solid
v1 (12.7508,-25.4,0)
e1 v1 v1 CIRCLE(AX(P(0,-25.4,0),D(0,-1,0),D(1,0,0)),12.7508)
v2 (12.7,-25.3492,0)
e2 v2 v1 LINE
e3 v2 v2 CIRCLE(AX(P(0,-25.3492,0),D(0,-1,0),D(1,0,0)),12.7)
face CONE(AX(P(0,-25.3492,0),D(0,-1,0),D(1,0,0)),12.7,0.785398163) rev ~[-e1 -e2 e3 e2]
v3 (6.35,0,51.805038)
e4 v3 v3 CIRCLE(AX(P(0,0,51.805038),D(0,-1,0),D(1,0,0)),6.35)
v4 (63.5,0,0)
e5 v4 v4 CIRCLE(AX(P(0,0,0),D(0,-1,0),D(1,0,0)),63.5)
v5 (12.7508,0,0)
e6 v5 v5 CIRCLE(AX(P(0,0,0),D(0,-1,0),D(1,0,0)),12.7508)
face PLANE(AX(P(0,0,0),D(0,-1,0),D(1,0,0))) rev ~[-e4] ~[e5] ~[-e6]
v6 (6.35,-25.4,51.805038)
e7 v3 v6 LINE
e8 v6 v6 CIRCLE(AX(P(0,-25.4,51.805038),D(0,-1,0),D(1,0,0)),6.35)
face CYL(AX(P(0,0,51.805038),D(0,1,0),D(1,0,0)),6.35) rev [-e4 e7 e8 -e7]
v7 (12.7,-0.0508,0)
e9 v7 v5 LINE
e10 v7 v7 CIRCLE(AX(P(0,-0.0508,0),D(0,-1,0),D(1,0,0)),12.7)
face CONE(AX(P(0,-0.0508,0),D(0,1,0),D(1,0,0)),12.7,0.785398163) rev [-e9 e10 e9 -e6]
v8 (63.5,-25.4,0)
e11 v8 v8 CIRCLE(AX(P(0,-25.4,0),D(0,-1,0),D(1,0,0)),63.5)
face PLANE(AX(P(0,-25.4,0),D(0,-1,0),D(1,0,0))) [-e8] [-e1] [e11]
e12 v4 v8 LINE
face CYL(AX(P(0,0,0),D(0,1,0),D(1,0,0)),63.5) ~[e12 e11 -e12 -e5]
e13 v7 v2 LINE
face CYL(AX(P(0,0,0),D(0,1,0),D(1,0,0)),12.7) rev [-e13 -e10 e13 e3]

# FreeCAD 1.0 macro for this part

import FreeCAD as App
import Part
import Sketcher
from FreeCAD import Vector
Q = App.Units.Quantity


def edges_at(feature, points):
    """Names of the edges that pass closest to the given points."""
    edges = feature.Shape.Edges
    near = lambda p: min(range(len(edges)), key=lambda i: edges[i].distToShape(Part.Vertex(*p))[0])
    return sorted({f"Edge{near(p) + 1}" for p in points})

doc = App.newDocument("Part")
params = doc.addObject("Spreadsheet::Sheet", "Params")
for row, (alias, value) in enumerate([
    ("sketch1_diameter", "5 in"),
    ("sketch1_diameter2", "1 in"),
    ("sketch1_diameter3", "0.5 in"),
    ("pad1_length", "1 in"),
    ("chamfer_size", "0.002 in"),
], start=1):
    params.set(f"A{row}", alias)
    params.set(f"B{row}", "=" + value)
    params.setAlias(f"B{row}", alias)

body = doc.addObject("PartDesign::Body", "Body")

# Sketch on XZ plane
sketch1 = body.newObject("Sketcher::SketchObject", "Sketch")
sketch1.AttachmentSupport = (doc.getObject("XZ_Plane"), [""])
sketch1.MapMode = "FlatFace"
sketch1.addGeometry(Part.Circle(Vector(0, 0, 0), Vector(0, 0, 1), 64), False)
sketch1.addGeometry(Part.Circle(Vector(0, 0, 0), Vector(0, 0, 1), 13), False)
sketch1.addGeometry(Part.Circle(Vector(0, 52, 0), Vector(0, 0, 1), 6), False)
sketch1.addConstraint(Sketcher.Constraint("Coincident", 0, 3, -1, 1))
sketch1.addConstraint(Sketcher.Constraint("Coincident", 1, 3, -1, 1))
sketch1.addConstraint(Sketcher.Constraint("PointOnObject", 2, 3, -2))
sketch1.addConstraint(Sketcher.Constraint("Diameter", 0, Q("5 in")))
sketch1.addConstraint(Sketcher.Constraint("Diameter", 1, Q("1 in")))
sketch1.addConstraint(Sketcher.Constraint("Diameter", 2, Q("0.5 in")))
sketch1.addConstraint(Sketcher.Constraint("DistanceY", -1, 1, 2, 3, Q("51.805038 mm")))
sketch1.setExpression("Constraints[3]", "Params.sketch1_diameter")
sketch1.setExpression("Constraints[4]", "Params.sketch1_diameter2")
sketch1.setExpression("Constraints[5]", "Params.sketch1_diameter3")
pad1 = body.newObject("PartDesign::Pad", "Pad")
pad1.Profile = sketch1
pad1.setExpression("Length", "Params.pad1_length")
doc.recompute()

chamfer = body.newObject("PartDesign::Chamfer", "Chamfer")
chamfer.Base = (pad1, edges_at(pad1, [(12.7, -12.7, 0), (-12.7, 0, 0), (-12.7, -25.4, 0)]))
chamfer.setExpression("Size", "Params.chamfer_size")

doc.recompute()
